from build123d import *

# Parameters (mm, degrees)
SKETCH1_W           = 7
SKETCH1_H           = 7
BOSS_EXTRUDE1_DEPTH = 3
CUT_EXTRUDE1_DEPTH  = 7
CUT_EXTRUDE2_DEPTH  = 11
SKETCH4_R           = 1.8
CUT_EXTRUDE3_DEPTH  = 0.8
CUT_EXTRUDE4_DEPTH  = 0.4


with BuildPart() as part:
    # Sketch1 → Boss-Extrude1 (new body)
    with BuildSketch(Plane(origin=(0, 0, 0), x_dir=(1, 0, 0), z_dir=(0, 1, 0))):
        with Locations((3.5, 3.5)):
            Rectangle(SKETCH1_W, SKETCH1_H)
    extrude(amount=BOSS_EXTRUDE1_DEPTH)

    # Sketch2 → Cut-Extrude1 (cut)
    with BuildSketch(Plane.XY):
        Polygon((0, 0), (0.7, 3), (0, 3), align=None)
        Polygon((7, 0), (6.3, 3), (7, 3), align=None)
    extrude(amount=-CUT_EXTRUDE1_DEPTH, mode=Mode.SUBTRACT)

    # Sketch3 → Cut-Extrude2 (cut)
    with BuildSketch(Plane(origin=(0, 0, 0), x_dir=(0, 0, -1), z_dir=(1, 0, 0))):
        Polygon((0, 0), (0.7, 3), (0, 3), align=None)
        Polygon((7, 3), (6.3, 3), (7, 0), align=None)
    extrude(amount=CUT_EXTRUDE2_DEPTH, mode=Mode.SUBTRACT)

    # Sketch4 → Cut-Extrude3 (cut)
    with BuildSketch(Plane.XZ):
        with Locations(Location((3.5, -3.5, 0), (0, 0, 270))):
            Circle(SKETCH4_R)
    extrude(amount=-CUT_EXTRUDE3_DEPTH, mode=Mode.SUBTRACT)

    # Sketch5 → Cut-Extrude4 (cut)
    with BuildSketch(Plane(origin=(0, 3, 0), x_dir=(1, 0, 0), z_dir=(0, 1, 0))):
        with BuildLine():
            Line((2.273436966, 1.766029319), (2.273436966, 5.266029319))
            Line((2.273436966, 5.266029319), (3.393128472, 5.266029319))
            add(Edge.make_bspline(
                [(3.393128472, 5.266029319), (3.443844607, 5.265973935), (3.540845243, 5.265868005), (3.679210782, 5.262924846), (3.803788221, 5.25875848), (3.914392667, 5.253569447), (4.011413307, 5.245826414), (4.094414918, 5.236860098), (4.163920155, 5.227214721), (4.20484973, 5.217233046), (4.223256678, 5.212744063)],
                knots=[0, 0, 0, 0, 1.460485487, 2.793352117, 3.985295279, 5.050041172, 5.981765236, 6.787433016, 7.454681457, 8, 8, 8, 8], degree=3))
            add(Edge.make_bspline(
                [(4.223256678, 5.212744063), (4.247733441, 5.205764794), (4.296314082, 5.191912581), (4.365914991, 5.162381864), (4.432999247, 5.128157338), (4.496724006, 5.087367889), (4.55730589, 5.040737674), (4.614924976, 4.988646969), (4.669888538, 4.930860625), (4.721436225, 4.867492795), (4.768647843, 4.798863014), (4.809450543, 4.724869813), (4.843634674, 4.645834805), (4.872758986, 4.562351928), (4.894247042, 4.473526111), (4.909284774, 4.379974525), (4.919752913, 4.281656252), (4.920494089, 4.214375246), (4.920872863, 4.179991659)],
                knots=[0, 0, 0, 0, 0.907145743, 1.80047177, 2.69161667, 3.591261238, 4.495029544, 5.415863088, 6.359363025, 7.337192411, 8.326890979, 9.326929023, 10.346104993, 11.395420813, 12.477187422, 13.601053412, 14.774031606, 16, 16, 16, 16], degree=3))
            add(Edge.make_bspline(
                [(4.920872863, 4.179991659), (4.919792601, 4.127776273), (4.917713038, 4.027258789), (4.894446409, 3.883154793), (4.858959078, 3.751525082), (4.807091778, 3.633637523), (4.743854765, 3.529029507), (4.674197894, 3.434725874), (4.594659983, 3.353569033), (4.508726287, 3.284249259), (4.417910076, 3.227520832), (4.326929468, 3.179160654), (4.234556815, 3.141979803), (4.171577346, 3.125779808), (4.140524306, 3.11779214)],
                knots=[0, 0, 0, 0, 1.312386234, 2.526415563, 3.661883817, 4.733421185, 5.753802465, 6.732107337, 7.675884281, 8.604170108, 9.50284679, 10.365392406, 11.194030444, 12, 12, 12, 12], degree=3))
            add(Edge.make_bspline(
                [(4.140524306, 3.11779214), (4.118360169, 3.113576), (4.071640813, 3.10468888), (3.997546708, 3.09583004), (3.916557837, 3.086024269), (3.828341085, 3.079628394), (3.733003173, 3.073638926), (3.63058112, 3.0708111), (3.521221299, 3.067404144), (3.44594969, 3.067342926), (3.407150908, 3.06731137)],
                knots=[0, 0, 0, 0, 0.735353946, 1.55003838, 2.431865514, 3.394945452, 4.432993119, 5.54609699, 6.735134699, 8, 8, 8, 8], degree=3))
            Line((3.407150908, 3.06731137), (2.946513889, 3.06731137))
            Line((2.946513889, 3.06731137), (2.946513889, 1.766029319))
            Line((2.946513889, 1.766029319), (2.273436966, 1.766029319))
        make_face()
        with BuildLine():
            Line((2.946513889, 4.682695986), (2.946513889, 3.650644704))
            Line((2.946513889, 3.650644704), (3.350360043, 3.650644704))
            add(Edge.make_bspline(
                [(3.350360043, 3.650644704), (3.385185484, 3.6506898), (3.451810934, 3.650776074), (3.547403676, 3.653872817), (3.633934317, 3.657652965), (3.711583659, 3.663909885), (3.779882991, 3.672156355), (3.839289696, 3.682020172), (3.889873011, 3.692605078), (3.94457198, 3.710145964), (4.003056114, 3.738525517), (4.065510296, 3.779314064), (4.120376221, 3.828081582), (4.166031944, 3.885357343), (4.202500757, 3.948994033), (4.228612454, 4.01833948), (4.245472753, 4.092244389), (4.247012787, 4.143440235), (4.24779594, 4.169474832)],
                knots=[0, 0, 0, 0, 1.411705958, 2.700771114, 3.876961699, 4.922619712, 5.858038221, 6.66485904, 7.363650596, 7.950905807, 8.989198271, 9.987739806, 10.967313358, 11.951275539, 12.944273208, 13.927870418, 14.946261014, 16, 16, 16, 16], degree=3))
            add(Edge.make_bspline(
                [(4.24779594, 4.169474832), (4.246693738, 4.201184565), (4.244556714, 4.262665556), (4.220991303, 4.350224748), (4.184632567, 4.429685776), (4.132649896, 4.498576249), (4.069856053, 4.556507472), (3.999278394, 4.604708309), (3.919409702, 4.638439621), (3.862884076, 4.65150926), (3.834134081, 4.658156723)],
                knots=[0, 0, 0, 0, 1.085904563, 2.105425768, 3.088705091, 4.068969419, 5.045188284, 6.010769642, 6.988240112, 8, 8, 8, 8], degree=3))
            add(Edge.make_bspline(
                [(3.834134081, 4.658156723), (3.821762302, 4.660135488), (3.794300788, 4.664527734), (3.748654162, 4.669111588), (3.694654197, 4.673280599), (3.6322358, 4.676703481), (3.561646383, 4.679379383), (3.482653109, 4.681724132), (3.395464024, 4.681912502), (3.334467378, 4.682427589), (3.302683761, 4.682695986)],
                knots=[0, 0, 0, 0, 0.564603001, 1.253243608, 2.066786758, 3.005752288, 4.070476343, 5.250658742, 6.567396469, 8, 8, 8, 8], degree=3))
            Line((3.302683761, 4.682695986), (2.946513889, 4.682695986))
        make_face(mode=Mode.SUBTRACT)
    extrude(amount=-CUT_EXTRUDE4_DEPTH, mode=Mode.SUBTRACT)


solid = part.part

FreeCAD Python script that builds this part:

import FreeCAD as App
import Part
import Sketcher


def add_polygon(sketch, points):
    """Adds a closed chain of lines whose ends are joined by coincident constraints."""
    first, n = sketch.GeometryCount, len(points)
    for a, b in zip(points, points[1:] + points[:1]):
        sketch.addGeometry(Part.LineSegment(App.Vector(*a, 0), App.Vector(*b, 0)), False)
    for i in range(n):
        sketch.addConstraint(Sketcher.Constraint("Coincident", first + i, 2, first + (i + 1) % n, 1))

doc = App.newDocument("Part")
body = doc.addObject("PartDesign::Body", "Body")

# Sketch on XZ plane
sketch1 = doc.addObject("Sketcher::SketchObject", "Sketch")
body.addObject(sketch1)
sketch1.AttachmentSupport = (doc.XZ_Plane, [""])
sketch1.MapMode = "FlatFace"
add_polygon(sketch1, [(0, -7), (0, 0), (7, 0), (7, -7)])  # lines 0-3
sketch1.addConstraint(Sketcher.Constraint("Vertical", 0))
sketch1.addConstraint(Sketcher.Constraint("Horizontal", 1))
sketch1.addConstraint(Sketcher.Constraint("Vertical", 2))
sketch1.addConstraint(Sketcher.Constraint("Horizontal", 3))
sketch1.addConstraint(Sketcher.Constraint("Coincident", 0, 2, -1, 1))
sketch1.addConstraint(Sketcher.Constraint("Equal", 3, 0))
sketch1.addConstraint(Sketcher.Constraint("DistanceX", 1, 1, 1, 2, 7.0))
pad1 = doc.addObject("PartDesign::Pad", "Pad")
body.addObject(pad1)
pad1.Profile = sketch1
pad1.Length = 3
pad1.Reversed = True

# Sketch on XY plane
sketch2 = doc.addObject("Sketcher::SketchObject", "Sketch001")
body.addObject(sketch2)
sketch2.AttachmentSupport = (doc.XY_Plane, [""])
sketch2.MapMode = "FlatFace"
add_polygon(sketch2, [(0, 0), (0.7, 3), (0, 3)])  # lines 0-2
add_polygon(sketch2, [(6.3, 3), (7, 0), (7, 3)])  # lines 3-5
sketch2.addConstraint(Sketcher.Constraint("Horizontal", 1))
sketch2.addConstraint(Sketcher.Constraint("Vertical", 2))
sketch2.addConstraint(Sketcher.Constraint("Vertical", 4))
sketch2.addConstraint(Sketcher.Constraint("Horizontal", 5))
sketch2.addConstraint(Sketcher.Constraint("Coincident", 2, 2, -1, 1))
sketch2.addConstraint(Sketcher.Constraint("PointOnObject", 3, 2, -1))
sketch2.addConstraint(Sketcher.Constraint("Horizontal", 1, 2, 4, 2))
sketch2.addConstraint(Sketcher.Constraint("Equal", 1, 5))
sketch2.addConstraint(Sketcher.Constraint("DistanceY", 2, 2, 2, 1, 3.0))
sketch2.addConstraint(Sketcher.Constraint("DistanceX", 1, 2, 1, 1, 0.7))
sketch2.addConstraint(Sketcher.Constraint("DistanceX", -1, 1, 3, 2, 7.0))
pocket1 = doc.addObject("PartDesign::Pocket", "Pocket")
body.addObject(pocket1)
pocket1.Profile = sketch2
pocket1.Length = 7

# Sketch on YZ plane
sketch3 = doc.addObject("Sketcher::SketchObject", "Sketch002")
body.addObject(sketch3)
sketch3.AttachmentSupport = (doc.YZ_Plane, [""])
sketch3.MapMode = "FlatFace"
add_polygon(sketch3, [(0, 0), (3, -0.7), (3, 0)])  # lines 0-2
add_polygon(sketch3, [(3, -7), (3, -6.3), (0, -7)])  # lines 3-5
sketch3.addConstraint(Sketcher.Constraint("Vertical", 1))
sketch3.addConstraint(Sketcher.Constraint("Horizontal", 2))
sketch3.addConstraint(Sketcher.Constraint("Vertical", 3))
sketch3.addConstraint(Sketcher.Constraint("Horizontal", 5))
sketch3.addConstraint(Sketcher.Constraint("Coincident", 2, 2, -1, 1))
sketch3.addConstraint(Sketcher.Constraint("PointOnObject", 4, 2, -2))
sketch3.addConstraint(Sketcher.Constraint("Vertical", 1, 2, 3, 2))
sketch3.addConstraint(Sketcher.Constraint("Equal", 1, 3))
sketch3.addConstraint(Sketcher.Constraint("DistanceX", 2, 2, 2, 1, 3.0))
sketch3.addConstraint(Sketcher.Constraint("DistanceY", 1, 1, 1, 2, 0.7))
sketch3.addConstraint(Sketcher.Constraint("DistanceY", 4, 2, -1, 1, 7.0))
pocket2 = doc.addObject("PartDesign::Pocket", "Pocket001")
body.addObject(pocket2)
pocket2.Profile = sketch3
pocket2.Length = 11
pocket2.Reversed = True

# Sketch on XZ plane
sketch4 = doc.addObject("Sketcher::SketchObject", "Sketch003")
body.addObject(sketch4)
sketch4.AttachmentSupport = (doc.XZ_Plane, [""])
sketch4.MapMode = "FlatFace"
sketch4.addGeometry(Part.Circle(App.Vector(3.5, -3.5, 0), App.Vector(0, 0, 1), 1.8), False)
sketch4.addConstraint(Sketcher.Constraint("Diameter", 0, 3.6))
sketch4.addConstraint(Sketcher.Constraint("DistanceX", -1, 1, 0, 3, 3.5))
sketch4.addConstraint(Sketcher.Constraint("DistanceY", 0, 3, -1, 1, 3.5))
pocket3 = doc.addObject("PartDesign::Pocket", "Pocket002")
body.addObject(pocket3)
pocket3.Profile = sketch4
pocket3.Length = 0.8

# Sketch on XZ plane
sketch5 = doc.addObject("Sketcher::SketchObject", "Sketch004")
body.addObject(sketch5)
sketch5.AttachmentSupport = (doc.XZ_Plane, [""])
sketch5.MapMode = "FlatFace"
sketch5.AttachmentOffset = App.Placement(App.Vector(0, 0, -3), App.Rotation())
sketch5.addGeometry(Part.LineSegment(App.Vector(2.273437, -5.266029, 0), App.Vector(2.273437, -1.766029, 0)), False)
sketch5.addGeometry(Part.LineSegment(App.Vector(2.273437, -1.766029, 0), App.Vector(2.946514, -1.766029, 0)), False)
sketch5.addGeometry(Part.LineSegment(App.Vector(2.946514, -1.766029, 0), App.Vector(2.946514, -3.067311, 0)), False)
sketch5.addGeometry(Part.LineSegment(App.Vector(2.946514, -3.067311, 0), App.Vector(3.407151, -3.067311, 0)), False)
sketch5.addGeometry(Part.BSplineCurve([App.Vector(4.140524, -3.117792, 0), App.Vector(4.11836, -3.113576, 0), App.Vector(4.071641, -3.104689, 0), App.Vector(3.997547, -3.09583, 0), App.Vector(3.916558, -3.086024, 0), App.Vector(3.828341, -3.079628, 0), App.Vector(3.733003, -3.073639, 0), App.Vector(3.630581, -3.070811, 0), App.Vector(3.521221, -3.067404, 0), App.Vector(3.44595, -3.067343, 0), App.Vector(3.407151, -3.067311, 0)], [4, 1, 1, 1, 1, 1, 1, 1, 4], [0, 0.735353946, 1.55003838, 2.431865514, 3.394945452, 4.432993119, 5.54609699, 6.735134699, 8], False, 3, [1, 1, 1, 1, 1, 1, 1, 1, 1, 1, 1], False), False)
sketch5.addGeometry(Part.BSplineCurve([App.Vector(4.920873, -4.179992, 0), App.Vector(4.919793, -4.127776, 0), App.Vector(4.917713, -4.027259, 0), App.Vector(4.894446, -3.883155, 0), App.Vector(4.858959, -3.751525, 0), App.Vector(4.807092, -3.633638, 0), App.Vector(4.743855, -3.52903, 0), App.Vector(4.674198, -3.434726, 0), App.Vector(4.59466, -3.353569, 0), App.Vector(4.508726, -3.284249, 0), App.Vector(4.41791, -3.227521, 0), App.Vector(4.326929, -3.179161, 0), App.Vector(4.234557, -3.14198, 0), App.Vector(4.171577, -3.12578, 0), App.Vector(4.140524, -3.117792, 0)], [4, 1, 1, 1, 1, 1, 1, 1, 1, 1, 1, 1, 4], [0, 1.312386234, 2.526415563, 3.661883817, 4.733421185, 5.753802465, 6.732107337, 7.675884281, 8.604170108, 9.50284679, 10.365392406, 11.194030444, 12], False, 3, [1, 1, 1, 1, 1, 1, 1, 1, 1, 1, 1, 1, 1, 1, 1], False), False)
sketch5.addGeometry(Part.BSplineCurve([App.Vector(4.223257, -5.212744, 0), App.Vector(4.247733, -5.205765, 0), App.Vector(4.296314, -5.191913, 0), App.Vector(4.365915, -5.162382, 0), App.Vector(4.432999, -5.128157, 0), App.Vector(4.496724, -5.087368, 0), App.Vector(4.557306, -5.040738, 0), App.Vector(4.614925, -4.988647, 0), App.Vector(4.669889, -4.930861, 0), App.Vector(4.721436, -4.867493, 0), App.Vector(4.768648, -4.798863, 0), App.Vector(4.809451, -4.72487, 0), App.Vector(4.843635, -4.645835, 0), App.Vector(4.872759, -4.562352, 0), App.Vector(4.894247, -4.473526, 0), App.Vector(4.909285, -4.379975, 0), App.Vector(4.919753, -4.281656, 0), App.Vector(4.920494, -4.214375, 0), App.Vector(4.920873, -4.179992, 0)], [4, 1, 1, 1, 1, 1, 1, 1, 1, 1, 1, 1, 1, 1, 1, 1, 4], [0, 0.907145743, 1.80047177, 2.69161667, 3.591261238, 4.495029544, 5.415863088, 6.359363025, 7.337192411, 8.326890979, 9.326929023, 10.346104993, 11.395420813, 12.477187422, 13.601053412, 14.774031606, 16], False, 3, [1, 1, 1, 1, 1, 1, 1, 1, 1, 1, 1, 1, 1, 1, 1, 1, 1, 1, 1], False), False)
sketch5.addGeometry(Part.BSplineCurve([App.Vector(3.393128, -5.266029, 0), App.Vector(3.443845, -5.265974, 0), App.Vector(3.540845, -5.265868, 0), App.Vector(3.679211, -5.262925, 0), App.Vector(3.803788, -5.258758, 0), App.Vector(3.914393, -5.253569, 0), App.Vector(4.011413, -5.245826, 0), App.Vector(4.094415, -5.23686, 0), App.Vector(4.16392, -5.227215, 0), App.Vector(4.20485, -5.217233, 0), App.Vector(4.223257, -5.212744, 0)], [4, 1, 1, 1, 1, 1, 1, 1, 4], [0, 1.460485487, 2.793352117, 3.985295279, 5.050041172, 5.981765236, 6.787433016, 7.454681457, 8], False, 3, [1, 1, 1, 1, 1, 1, 1, 1, 1, 1, 1], False), False)
sketch5.addGeometry(Part.LineSegment(App.Vector(3.393128, -5.266029, 0), App.Vector(2.273437, -5.266029, 0)), False)
sketch5.addGeometry(Part.LineSegment(App.Vector(2.946514, -4.682696, 0), App.Vector(3.302684, -4.682696, 0)), False)
sketch5.addGeometry(Part.BSplineCurve([App.Vector(3.834134, -4.658157, 0), App.Vector(3.821762, -4.660135, 0), App.Vector(3.794301, -4.664528, 0), App.Vector(3.748654, -4.669112, 0), App.Vector(3.694654, -4.673281, 0), App.Vector(3.632236, -4.676703, 0), App.Vector(3.561646, -4.679379, 0), App.Vector(3.482653, -4.681724, 0), App.Vector(3.395464, -4.681913, 0), App.Vector(3.334467, -4.682428, 0), App.Vector(3.302684, -4.682696, 0)], [4, 1, 1, 1, 1, 1, 1, 1, 4], [0, 0.564603001, 1.253243608, 2.066786758, 3.005752288, 4.070476343, 5.250658742, 6.567396469, 8], False, 3, [1, 1, 1, 1, 1, 1, 1, 1, 1, 1, 1], False), False)
sketch5.addGeometry(Part.BSplineCurve([App.Vector(4.247796, -4.169475, 0), App.Vector(4.246694, -4.201185, 0), App.Vector(4.244557, -4.262666, 0), App.Vector(4.220991, -4.350225, 0), App.Vector(4.184633, -4.429686, 0), App.Vector(4.13265, -4.498576, 0), App.Vector(4.069856, -4.556507, 0), App.Vector(3.999278, -4.604708, 0), App.Vector(3.91941, -4.63844, 0), App.Vector(3.862884, -4.651509, 0), App.Vector(3.834134, -4.658157, 0)], [4, 1, 1, 1, 1, 1, 1, 1, 4], [0, 1.085904563, 2.105425768, 3.088705091, 4.068969419, 5.045188284, 6.010769642, 6.988240112, 8], False, 3, [1, 1, 1, 1, 1, 1, 1, 1, 1, 1, 1], False), False)
sketch5.addGeometry(Part.BSplineCurve([App.Vector(3.35036, -3.650645, 0), App.Vector(3.385185, -3.65069, 0), App.Vector(3.451811, -3.650776, 0), App.Vector(3.547404, -3.653873, 0), App.Vector(3.633934, -3.657653, 0), App.Vector(3.711584, -3.66391, 0), App.Vector(3.779883, -3.672156, 0), App.Vector(3.83929, -3.68202, 0), App.Vector(3.889873, -3.692605, 0), App.Vector(3.944572, -3.710146, 0), App.Vector(4.003056, -3.738526, 0), App.Vector(4.06551, -3.779314, 0), App.Vector(4.120376, -3.828082, 0), App.Vector(4.166032, -3.885357, 0), App.Vector(4.202501, -3.948994, 0), App.Vector(4.228612, -4.018339, 0), App.Vector(4.245473, -4.092244, 0), App.Vector(4.247013, -4.14344, 0), App.Vector(4.247796, -4.169475, 0)], [4, 1, 1, 1, 1, 1, 1, 1, 1, 1, 1, 1, 1, 1, 1, 1, 4], [0, 1.411705958, 2.700771114, 3.876961699, 4.922619712, 5.858038221, 6.66485904, 7.363650596, 7.950905807, 8.989198271, 9.987739806, 10.967313358, 11.951275539, 12.944273208, 13.927870418, 14.946261014, 16], False, 3, [1, 1, 1, 1, 1, 1, 1, 1, 1, 1, 1, 1, 1, 1, 1, 1, 1, 1, 1], False), False)
sketch5.addGeometry(Part.LineSegment(App.Vector(3.35036, -3.650645, 0), App.Vector(2.946514, -3.650645, 0)), False)
sketch5.addGeometry(Part.LineSegment(App.Vector(2.946514, -3.650645, 0), App.Vector(2.946514, -4.682696, 0)), False)
sketch5.addConstraint(Sketcher.Constraint("Block", 4))
sketch5.addConstraint(Sketcher.Constraint("Block", 5))
sketch5.addConstraint(Sketcher.Constraint("Block", 6))
sketch5.addConstraint(Sketcher.Constraint("Block", 7))
sketch5.addConstraint(Sketcher.Constraint("Block", 10))
sketch5.addConstraint(Sketcher.Constraint("Block", 11))
sketch5.addConstraint(Sketcher.Constraint("Block", 12))
sketch5.addConstraint(Sketcher.Constraint("Coincident", 0, 2, 1, 1))
sketch5.addConstraint(Sketcher.Constraint("Coincident", 1, 2, 2, 1))
sketch5.addConstraint(Sketcher.Constraint("Coincident", 2, 2, 3, 1))
sketch5.addConstraint(Sketcher.Constraint("Coincident", 3, 2, 4, 2))
sketch5.addConstraint(Sketcher.Constraint("Coincident", 7, 1, 8, 1))
sketch5.addConstraint(Sketcher.Constraint("Coincident", 8, 2, 0, 1))
sketch5.addConstraint(Sketcher.Constraint("Coincident", 9, 2, 10, 2))
sketch5.addConstraint(Sketcher.Constraint("Coincident", 12, 1, 13, 1))
sketch5.addConstraint(Sketcher.Constraint("Coincident", 13, 2, 14, 1))
sketch5.addConstraint(Sketcher.Constraint("Coincident", 14, 2, 9, 1))
sketch5.addConstraint(Sketcher.Constraint("Vertical", 0))
sketch5.addConstraint(Sketcher.Constraint("Horizontal", 1))
sketch5.addConstraint(Sketcher.Constraint("Vertical", 2))
sketch5.addConstraint(Sketcher.Constraint("Horizontal", 3))
sketch5.addConstraint(Sketcher.Constraint("Horizontal", 8))
sketch5.addConstraint(Sketcher.Constraint("Horizontal", 9))
sketch5.addConstraint(Sketcher.Constraint("Horizontal", 13))
sketch5.addConstraint(Sketcher.Constraint("Vertical", 14))
sketch5.addConstraint(Sketcher.Constraint("Vertical", 2, 2, 13, 2))
sketch5.addConstraint(Sketcher.Constraint("DistanceY", 0, 1, 0, 2, 3.5))
sketch5.addConstraint(Sketcher.Constraint("DistanceX", 8, 2, 8, 1, 1.119692))
sketch5.addConstraint(Sketcher.Constraint("DistanceX", 9, 1, 9, 2, 0.35617))
pocket4 = doc.addObject("PartDesign::Pocket", "Pocket003")
body.addObject(pocket4)
pocket4.Profile = sketch5
pocket4.Length = 0.4
pocket4.Reversed = True

doc.recompute()
